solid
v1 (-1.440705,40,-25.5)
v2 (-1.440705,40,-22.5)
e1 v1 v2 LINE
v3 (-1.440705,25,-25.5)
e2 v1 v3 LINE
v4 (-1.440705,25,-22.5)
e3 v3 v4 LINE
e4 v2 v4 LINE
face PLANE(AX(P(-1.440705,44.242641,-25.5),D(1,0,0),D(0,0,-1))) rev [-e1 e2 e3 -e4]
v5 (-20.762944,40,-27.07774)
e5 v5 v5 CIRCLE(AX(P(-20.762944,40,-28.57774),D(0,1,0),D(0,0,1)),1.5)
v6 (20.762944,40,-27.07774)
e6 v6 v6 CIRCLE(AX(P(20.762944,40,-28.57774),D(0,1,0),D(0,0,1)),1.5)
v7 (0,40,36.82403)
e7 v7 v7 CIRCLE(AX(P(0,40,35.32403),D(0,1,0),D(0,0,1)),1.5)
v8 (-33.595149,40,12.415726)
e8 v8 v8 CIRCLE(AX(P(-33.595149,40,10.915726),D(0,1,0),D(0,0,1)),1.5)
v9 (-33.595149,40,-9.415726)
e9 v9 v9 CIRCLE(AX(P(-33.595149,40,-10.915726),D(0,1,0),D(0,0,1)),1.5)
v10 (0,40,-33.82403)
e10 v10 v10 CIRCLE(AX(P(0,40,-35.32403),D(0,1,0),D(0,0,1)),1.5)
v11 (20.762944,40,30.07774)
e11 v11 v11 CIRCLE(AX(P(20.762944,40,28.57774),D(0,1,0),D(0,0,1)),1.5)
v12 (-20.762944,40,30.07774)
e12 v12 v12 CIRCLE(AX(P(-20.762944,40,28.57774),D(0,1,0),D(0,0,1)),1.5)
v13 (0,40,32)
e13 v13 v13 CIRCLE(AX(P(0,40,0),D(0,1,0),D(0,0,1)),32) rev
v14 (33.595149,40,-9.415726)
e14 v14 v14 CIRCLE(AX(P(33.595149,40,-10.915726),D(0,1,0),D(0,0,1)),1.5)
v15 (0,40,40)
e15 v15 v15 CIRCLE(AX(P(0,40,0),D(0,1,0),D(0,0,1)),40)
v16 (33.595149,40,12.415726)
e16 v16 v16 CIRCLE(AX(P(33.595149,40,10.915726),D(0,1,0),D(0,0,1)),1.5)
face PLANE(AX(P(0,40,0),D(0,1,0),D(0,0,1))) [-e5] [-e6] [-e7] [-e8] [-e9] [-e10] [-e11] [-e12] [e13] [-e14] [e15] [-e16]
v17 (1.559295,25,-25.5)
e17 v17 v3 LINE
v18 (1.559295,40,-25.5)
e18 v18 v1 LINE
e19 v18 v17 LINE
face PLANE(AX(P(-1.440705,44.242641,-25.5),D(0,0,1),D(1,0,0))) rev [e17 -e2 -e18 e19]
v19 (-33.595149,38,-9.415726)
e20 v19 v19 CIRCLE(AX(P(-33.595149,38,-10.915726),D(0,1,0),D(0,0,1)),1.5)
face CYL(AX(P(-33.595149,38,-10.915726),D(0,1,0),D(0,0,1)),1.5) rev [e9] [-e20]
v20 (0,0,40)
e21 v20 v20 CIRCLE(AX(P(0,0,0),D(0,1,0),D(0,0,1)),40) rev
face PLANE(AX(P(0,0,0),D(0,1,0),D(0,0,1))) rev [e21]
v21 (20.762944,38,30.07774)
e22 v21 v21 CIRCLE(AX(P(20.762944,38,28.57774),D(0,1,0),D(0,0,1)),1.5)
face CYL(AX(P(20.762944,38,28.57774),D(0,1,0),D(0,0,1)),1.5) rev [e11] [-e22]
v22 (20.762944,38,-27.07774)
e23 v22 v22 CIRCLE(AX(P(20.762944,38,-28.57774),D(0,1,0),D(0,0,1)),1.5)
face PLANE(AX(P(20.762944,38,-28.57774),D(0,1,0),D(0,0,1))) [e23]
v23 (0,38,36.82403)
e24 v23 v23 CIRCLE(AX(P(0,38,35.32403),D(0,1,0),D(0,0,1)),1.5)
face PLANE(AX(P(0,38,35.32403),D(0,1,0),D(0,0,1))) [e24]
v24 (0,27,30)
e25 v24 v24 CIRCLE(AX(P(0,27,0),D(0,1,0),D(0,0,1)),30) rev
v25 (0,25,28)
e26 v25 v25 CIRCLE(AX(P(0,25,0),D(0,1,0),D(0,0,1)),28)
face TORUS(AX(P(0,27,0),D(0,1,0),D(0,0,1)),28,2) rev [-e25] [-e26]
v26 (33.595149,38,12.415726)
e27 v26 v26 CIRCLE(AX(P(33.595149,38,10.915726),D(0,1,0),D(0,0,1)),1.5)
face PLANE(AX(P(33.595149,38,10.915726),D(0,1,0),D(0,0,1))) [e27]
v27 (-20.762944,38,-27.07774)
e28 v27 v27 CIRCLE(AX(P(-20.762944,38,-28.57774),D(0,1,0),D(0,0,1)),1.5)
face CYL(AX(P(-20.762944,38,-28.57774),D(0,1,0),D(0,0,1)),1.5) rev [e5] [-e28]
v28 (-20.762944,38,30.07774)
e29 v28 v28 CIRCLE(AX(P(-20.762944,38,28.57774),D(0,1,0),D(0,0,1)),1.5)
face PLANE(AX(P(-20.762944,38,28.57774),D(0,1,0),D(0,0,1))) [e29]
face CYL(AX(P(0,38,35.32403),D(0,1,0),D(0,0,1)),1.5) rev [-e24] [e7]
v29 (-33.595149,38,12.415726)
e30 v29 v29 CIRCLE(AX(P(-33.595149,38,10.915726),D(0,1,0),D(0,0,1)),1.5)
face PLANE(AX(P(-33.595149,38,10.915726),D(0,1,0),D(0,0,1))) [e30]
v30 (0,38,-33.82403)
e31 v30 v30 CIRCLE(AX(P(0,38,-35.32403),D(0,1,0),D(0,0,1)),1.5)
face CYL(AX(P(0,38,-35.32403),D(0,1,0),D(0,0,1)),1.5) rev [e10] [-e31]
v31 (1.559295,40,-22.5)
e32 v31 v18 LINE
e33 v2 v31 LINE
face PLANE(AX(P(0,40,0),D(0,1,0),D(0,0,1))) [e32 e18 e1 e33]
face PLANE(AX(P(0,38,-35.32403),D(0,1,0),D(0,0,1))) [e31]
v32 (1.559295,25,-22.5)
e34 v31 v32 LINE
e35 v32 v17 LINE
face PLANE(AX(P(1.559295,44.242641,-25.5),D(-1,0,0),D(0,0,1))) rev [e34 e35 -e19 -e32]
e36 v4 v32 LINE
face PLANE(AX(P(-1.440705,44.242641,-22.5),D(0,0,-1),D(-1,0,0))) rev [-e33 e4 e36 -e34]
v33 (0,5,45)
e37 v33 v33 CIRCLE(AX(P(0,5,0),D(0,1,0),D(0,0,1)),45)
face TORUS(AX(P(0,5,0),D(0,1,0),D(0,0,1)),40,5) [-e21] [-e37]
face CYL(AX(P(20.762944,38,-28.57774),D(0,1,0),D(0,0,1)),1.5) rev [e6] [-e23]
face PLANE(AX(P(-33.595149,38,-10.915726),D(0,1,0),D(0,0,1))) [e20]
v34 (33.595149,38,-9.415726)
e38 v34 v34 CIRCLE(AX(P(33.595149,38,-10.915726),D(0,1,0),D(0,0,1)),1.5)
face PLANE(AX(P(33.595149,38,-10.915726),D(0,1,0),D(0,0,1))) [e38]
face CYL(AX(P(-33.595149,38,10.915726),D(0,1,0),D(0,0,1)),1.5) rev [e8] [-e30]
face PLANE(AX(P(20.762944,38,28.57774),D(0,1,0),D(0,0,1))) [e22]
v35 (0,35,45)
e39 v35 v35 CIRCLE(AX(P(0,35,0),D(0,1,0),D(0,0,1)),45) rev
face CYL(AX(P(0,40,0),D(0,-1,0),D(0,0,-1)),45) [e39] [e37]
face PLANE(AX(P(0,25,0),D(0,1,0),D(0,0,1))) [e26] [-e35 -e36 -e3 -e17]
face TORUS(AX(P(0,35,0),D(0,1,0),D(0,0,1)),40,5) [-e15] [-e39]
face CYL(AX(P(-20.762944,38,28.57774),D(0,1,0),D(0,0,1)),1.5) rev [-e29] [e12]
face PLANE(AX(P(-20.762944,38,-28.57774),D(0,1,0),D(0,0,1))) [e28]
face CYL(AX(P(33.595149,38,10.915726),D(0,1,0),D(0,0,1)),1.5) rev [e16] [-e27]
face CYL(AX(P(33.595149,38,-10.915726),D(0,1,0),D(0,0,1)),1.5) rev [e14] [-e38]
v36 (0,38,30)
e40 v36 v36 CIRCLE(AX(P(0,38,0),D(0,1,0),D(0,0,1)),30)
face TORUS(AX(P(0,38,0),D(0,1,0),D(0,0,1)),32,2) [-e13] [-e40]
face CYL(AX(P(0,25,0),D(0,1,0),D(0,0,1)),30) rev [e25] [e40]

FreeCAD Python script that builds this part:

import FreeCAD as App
import Part
import Sketcher


def edges_at(feature, points):
    """Names of the edges that pass closest to the given points."""
    edges = feature.Shape.Edges
    near = lambda p: min(range(len(edges)), key=lambda i: edges[i].distToShape(Part.Vertex(*p))[0])
    return sorted({f"Edge{near(p) + 1}" for p in points})

doc = App.newDocument("Part")
body = doc.addObject("PartDesign::Body", "Body")

sketch1 = body.newObject("Sketcher::SketchObject", "Sketch")
sketch1.AttachmentSupport = (doc.getObject("XZ_Plane"), [""])
sketch1.MapMode = "FlatFace"
sketch1.addGeometry(Part.Circle(App.Vector(0, 0, 0), App.Vector(0, 0, 1), 45), False)
sketch1.addConstraint(Sketcher.Constraint("Coincident", 0, 3, -1, 1))
sketch1.addConstraint(Sketcher.Constraint("Diameter", 0, 90.0))
pad1 = body.newObject("PartDesign::Pad", "Pad")
pad1.Profile = sketch1
pad1.Length = 40
pad1.Reversed = True
doc.recompute()

fillet = body.newObject("PartDesign::Fillet", "Fillet")
fillet.Base = (pad1, edges_at(pad1, [(-45, 0, 0), (-45, 40, 0)]))
fillet.Radius = 5

sketch2 = body.newObject("Sketcher::SketchObject", "Sketch001")
sketch2.AttachmentSupport = (doc.getObject("XZ_Plane"), [""])
sketch2.MapMode = "FlatFace"
sketch2.AttachmentOffset = App.Placement(App.Vector(0, 0, -40), App.Rotation())
sketch2.addGeometry(Part.Circle(App.Vector(0, 0, 0), App.Vector(0, 0, 1), 30), False)
sketch2.addConstraint(Sketcher.Constraint("Coincident", 0, 3, -1, 1))
sketch2.addConstraint(Sketcher.Constraint("Diameter", 0, 60.0))
pocket1 = body.newObject("PartDesign::Pocket", "Pocket")
pocket1.Profile = sketch2
pocket1.Length = 15
pocket1.Reversed = True
doc.recompute()

fillet2 = body.newObject("PartDesign::Fillet", "Fillet001")
fillet2.Base = (pocket1, edges_at(pocket1, [(-30, 25, 0), (-30, 40, 0)]))
fillet2.Radius = 2

sketch3 = body.newObject("Sketcher::SketchObject", "Sketch002")
sketch3.AttachmentSupport = (doc.getObject("XZ_Plane"), [""])
sketch3.MapMode = "FlatFace"
sketch3.AttachmentOffset = App.Placement(App.Vector(0, 0, -40), App.Rotation())
sketch3.addGeometry(Part.Circle(App.Vector(0, -35.32403, 0), App.Vector(0, 0, 1), 1.5), False)
sketch3.addGeometry(Part.Circle(App.Vector(20.762944, -28.57774, 0), App.Vector(0, 0, 1), 1.5), False)
sketch3.addGeometry(Part.Circle(App.Vector(33.595149, -10.915726, 0), App.Vector(0, 0, 1), 1.5), False)
sketch3.addGeometry(Part.Circle(App.Vector(33.595149, 10.915726, 0), App.Vector(0, 0, 1), 1.5), False)
sketch3.addGeometry(Part.Circle(App.Vector(20.762944, 28.57774, 0), App.Vector(0, 0, 1), 1.5), False)
sketch3.addGeometry(Part.Circle(App.Vector(0, 35.32403, 0), App.Vector(0, 0, 1), 1.5), False)
sketch3.addGeometry(Part.Circle(App.Vector(-20.762944, 28.57774, 0), App.Vector(0, 0, 1), 1.5), False)
sketch3.addGeometry(Part.Circle(App.Vector(-33.595149, 10.915726, 0), App.Vector(0, 0, 1), 1.5), False)
sketch3.addGeometry(Part.Circle(App.Vector(-33.595149, -10.915726, 0), App.Vector(0, 0, 1), 1.5), False)
sketch3.addGeometry(Part.Circle(App.Vector(-20.762944, -28.57774, 0), App.Vector(0, 0, 1), 1.5), False)
sketch3.addConstraint(Sketcher.Constraint("Equal", 0, 1))
sketch3.addConstraint(Sketcher.Constraint("Equal", 1, 2))
sketch3.addConstraint(Sketcher.Constraint("Equal", 2, 3))
sketch3.addConstraint(Sketcher.Constraint("Equal", 3, 4))
sketch3.addConstraint(Sketcher.Constraint("Equal", 4, 5))
sketch3.addConstraint(Sketcher.Constraint("Equal", 5, 6))
sketch3.addConstraint(Sketcher.Constraint("Equal", 6, 7))
sketch3.addConstraint(Sketcher.Constraint("Equal", 7, 8))
sketch3.addConstraint(Sketcher.Constraint("Equal", 8, 9))
sketch3.addConstraint(Sketcher.Constraint("Symmetric", 0, 3, 5, 3, -1, 1))
sketch3.addConstraint(Sketcher.Constraint("Symmetric", 1, 3, 6, 3, -1, 1))
sketch3.addConstraint(Sketcher.Constraint("Symmetric", 2, 3, 7, 3, -1, 1))
sketch3.addConstraint(Sketcher.Constraint("Symmetric", 3, 3, 8, 3, -1, 1))
sketch3.addConstraint(Sketcher.Constraint("Symmetric", 4, 3, 9, 3, -1, 1))
sketch3.addConstraint(Sketcher.Constraint("Symmetric", 4, 3, 6, 3, -2))
sketch3.addConstraint(Sketcher.Constraint("Symmetric", 3, 3, 7, 3, -2))
sketch3.addConstraint(Sketcher.Constraint("PointOnObject", 0, 3, -2))
sketch3.addConstraint(Sketcher.Constraint("Diameter", 0, 3.0))
sketch3.addConstraint(Sketcher.Constraint("DistanceY", 0, 3, -1, 1, 35.32403))
sketch3.addConstraint(Sketcher.Constraint("DistanceY", 1, 3, -1, 1, 28.57774))
sketch3.addConstraint(Sketcher.Constraint("DistanceX", -1, 1, 2, 3, 33.595149))
sketch3.addConstraint(Sketcher.Constraint("DistanceY", 2, 3, 3, 3, 21.831451))
sketch3.addConstraint(Sketcher.Constraint("DistanceX", -1, 1, 1, 3, 20.762944))
pocket2 = body.newObject("PartDesign::Pocket", "Pocket001")
pocket2.Profile = sketch3
pocket2.Length = 2
pocket2.Reversed = True

sketch4 = body.newObject("Sketcher::SketchObject", "Sketch003")
sketch4.AttachmentSupport = (doc.getObject("XZ_Plane"), [""])
sketch4.MapMode = "FlatFace"
sketch4.AttachmentOffset = App.Placement(App.Vector(0, 0, -25), App.Rotation())
sketch4.addGeometry(Part.LineSegment(App.Vector(-1.440705, -25.5, 0), App.Vector(-1.440705, -22.5, 0)), False)
sketch4.addGeometry(Part.LineSegment(App.Vector(-1.440705, -22.5, 0), App.Vector(1.559295, -22.5, 0)), False)
sketch4.addGeometry(Part.LineSegment(App.Vector(1.559295, -22.5, 0), App.Vector(1.559295, -25.5, 0)), False)
sketch4.addGeometry(Part.LineSegment(App.Vector(1.559295, -25.5, 0), App.Vector(-1.440705, -25.5, 0)), False)
sketch4.addConstraint(Sketcher.Constraint("Coincident", 0, 2, 1, 1))
sketch4.addConstraint(Sketcher.Constraint("Coincident", 1, 2, 2, 1))
sketch4.addConstraint(Sketcher.Constraint("Coincident", 2, 2, 3, 1))
sketch4.addConstraint(Sketcher.Constraint("Coincident", 3, 2, 0, 1))
sketch4.addConstraint(Sketcher.Constraint("Vertical", 0))
sketch4.addConstraint(Sketcher.Constraint("Horizontal", 1))
sketch4.addConstraint(Sketcher.Constraint("Vertical", 2))
sketch4.addConstraint(Sketcher.Constraint("Horizontal", 3))
sketch4.addConstraint(Sketcher.Constraint("Equal", 3, 0))
sketch4.addConstraint(Sketcher.Constraint("DistanceX", 1, 1, 1, 2, 3.0))
sketch4.addConstraint(Sketcher.Constraint("DistanceY", 0, 2, -1, 1, 22.5))
sketch4.addConstraint(Sketcher.Constraint("DistanceX", 0, 2, -1, 1, 1.440705))
pad2 = body.newObject("PartDesign::Pad", "Pad001")
pad2.Profile = sketch4
pad2.Length = 15
pad2.Reversed = True

doc.recompute()
